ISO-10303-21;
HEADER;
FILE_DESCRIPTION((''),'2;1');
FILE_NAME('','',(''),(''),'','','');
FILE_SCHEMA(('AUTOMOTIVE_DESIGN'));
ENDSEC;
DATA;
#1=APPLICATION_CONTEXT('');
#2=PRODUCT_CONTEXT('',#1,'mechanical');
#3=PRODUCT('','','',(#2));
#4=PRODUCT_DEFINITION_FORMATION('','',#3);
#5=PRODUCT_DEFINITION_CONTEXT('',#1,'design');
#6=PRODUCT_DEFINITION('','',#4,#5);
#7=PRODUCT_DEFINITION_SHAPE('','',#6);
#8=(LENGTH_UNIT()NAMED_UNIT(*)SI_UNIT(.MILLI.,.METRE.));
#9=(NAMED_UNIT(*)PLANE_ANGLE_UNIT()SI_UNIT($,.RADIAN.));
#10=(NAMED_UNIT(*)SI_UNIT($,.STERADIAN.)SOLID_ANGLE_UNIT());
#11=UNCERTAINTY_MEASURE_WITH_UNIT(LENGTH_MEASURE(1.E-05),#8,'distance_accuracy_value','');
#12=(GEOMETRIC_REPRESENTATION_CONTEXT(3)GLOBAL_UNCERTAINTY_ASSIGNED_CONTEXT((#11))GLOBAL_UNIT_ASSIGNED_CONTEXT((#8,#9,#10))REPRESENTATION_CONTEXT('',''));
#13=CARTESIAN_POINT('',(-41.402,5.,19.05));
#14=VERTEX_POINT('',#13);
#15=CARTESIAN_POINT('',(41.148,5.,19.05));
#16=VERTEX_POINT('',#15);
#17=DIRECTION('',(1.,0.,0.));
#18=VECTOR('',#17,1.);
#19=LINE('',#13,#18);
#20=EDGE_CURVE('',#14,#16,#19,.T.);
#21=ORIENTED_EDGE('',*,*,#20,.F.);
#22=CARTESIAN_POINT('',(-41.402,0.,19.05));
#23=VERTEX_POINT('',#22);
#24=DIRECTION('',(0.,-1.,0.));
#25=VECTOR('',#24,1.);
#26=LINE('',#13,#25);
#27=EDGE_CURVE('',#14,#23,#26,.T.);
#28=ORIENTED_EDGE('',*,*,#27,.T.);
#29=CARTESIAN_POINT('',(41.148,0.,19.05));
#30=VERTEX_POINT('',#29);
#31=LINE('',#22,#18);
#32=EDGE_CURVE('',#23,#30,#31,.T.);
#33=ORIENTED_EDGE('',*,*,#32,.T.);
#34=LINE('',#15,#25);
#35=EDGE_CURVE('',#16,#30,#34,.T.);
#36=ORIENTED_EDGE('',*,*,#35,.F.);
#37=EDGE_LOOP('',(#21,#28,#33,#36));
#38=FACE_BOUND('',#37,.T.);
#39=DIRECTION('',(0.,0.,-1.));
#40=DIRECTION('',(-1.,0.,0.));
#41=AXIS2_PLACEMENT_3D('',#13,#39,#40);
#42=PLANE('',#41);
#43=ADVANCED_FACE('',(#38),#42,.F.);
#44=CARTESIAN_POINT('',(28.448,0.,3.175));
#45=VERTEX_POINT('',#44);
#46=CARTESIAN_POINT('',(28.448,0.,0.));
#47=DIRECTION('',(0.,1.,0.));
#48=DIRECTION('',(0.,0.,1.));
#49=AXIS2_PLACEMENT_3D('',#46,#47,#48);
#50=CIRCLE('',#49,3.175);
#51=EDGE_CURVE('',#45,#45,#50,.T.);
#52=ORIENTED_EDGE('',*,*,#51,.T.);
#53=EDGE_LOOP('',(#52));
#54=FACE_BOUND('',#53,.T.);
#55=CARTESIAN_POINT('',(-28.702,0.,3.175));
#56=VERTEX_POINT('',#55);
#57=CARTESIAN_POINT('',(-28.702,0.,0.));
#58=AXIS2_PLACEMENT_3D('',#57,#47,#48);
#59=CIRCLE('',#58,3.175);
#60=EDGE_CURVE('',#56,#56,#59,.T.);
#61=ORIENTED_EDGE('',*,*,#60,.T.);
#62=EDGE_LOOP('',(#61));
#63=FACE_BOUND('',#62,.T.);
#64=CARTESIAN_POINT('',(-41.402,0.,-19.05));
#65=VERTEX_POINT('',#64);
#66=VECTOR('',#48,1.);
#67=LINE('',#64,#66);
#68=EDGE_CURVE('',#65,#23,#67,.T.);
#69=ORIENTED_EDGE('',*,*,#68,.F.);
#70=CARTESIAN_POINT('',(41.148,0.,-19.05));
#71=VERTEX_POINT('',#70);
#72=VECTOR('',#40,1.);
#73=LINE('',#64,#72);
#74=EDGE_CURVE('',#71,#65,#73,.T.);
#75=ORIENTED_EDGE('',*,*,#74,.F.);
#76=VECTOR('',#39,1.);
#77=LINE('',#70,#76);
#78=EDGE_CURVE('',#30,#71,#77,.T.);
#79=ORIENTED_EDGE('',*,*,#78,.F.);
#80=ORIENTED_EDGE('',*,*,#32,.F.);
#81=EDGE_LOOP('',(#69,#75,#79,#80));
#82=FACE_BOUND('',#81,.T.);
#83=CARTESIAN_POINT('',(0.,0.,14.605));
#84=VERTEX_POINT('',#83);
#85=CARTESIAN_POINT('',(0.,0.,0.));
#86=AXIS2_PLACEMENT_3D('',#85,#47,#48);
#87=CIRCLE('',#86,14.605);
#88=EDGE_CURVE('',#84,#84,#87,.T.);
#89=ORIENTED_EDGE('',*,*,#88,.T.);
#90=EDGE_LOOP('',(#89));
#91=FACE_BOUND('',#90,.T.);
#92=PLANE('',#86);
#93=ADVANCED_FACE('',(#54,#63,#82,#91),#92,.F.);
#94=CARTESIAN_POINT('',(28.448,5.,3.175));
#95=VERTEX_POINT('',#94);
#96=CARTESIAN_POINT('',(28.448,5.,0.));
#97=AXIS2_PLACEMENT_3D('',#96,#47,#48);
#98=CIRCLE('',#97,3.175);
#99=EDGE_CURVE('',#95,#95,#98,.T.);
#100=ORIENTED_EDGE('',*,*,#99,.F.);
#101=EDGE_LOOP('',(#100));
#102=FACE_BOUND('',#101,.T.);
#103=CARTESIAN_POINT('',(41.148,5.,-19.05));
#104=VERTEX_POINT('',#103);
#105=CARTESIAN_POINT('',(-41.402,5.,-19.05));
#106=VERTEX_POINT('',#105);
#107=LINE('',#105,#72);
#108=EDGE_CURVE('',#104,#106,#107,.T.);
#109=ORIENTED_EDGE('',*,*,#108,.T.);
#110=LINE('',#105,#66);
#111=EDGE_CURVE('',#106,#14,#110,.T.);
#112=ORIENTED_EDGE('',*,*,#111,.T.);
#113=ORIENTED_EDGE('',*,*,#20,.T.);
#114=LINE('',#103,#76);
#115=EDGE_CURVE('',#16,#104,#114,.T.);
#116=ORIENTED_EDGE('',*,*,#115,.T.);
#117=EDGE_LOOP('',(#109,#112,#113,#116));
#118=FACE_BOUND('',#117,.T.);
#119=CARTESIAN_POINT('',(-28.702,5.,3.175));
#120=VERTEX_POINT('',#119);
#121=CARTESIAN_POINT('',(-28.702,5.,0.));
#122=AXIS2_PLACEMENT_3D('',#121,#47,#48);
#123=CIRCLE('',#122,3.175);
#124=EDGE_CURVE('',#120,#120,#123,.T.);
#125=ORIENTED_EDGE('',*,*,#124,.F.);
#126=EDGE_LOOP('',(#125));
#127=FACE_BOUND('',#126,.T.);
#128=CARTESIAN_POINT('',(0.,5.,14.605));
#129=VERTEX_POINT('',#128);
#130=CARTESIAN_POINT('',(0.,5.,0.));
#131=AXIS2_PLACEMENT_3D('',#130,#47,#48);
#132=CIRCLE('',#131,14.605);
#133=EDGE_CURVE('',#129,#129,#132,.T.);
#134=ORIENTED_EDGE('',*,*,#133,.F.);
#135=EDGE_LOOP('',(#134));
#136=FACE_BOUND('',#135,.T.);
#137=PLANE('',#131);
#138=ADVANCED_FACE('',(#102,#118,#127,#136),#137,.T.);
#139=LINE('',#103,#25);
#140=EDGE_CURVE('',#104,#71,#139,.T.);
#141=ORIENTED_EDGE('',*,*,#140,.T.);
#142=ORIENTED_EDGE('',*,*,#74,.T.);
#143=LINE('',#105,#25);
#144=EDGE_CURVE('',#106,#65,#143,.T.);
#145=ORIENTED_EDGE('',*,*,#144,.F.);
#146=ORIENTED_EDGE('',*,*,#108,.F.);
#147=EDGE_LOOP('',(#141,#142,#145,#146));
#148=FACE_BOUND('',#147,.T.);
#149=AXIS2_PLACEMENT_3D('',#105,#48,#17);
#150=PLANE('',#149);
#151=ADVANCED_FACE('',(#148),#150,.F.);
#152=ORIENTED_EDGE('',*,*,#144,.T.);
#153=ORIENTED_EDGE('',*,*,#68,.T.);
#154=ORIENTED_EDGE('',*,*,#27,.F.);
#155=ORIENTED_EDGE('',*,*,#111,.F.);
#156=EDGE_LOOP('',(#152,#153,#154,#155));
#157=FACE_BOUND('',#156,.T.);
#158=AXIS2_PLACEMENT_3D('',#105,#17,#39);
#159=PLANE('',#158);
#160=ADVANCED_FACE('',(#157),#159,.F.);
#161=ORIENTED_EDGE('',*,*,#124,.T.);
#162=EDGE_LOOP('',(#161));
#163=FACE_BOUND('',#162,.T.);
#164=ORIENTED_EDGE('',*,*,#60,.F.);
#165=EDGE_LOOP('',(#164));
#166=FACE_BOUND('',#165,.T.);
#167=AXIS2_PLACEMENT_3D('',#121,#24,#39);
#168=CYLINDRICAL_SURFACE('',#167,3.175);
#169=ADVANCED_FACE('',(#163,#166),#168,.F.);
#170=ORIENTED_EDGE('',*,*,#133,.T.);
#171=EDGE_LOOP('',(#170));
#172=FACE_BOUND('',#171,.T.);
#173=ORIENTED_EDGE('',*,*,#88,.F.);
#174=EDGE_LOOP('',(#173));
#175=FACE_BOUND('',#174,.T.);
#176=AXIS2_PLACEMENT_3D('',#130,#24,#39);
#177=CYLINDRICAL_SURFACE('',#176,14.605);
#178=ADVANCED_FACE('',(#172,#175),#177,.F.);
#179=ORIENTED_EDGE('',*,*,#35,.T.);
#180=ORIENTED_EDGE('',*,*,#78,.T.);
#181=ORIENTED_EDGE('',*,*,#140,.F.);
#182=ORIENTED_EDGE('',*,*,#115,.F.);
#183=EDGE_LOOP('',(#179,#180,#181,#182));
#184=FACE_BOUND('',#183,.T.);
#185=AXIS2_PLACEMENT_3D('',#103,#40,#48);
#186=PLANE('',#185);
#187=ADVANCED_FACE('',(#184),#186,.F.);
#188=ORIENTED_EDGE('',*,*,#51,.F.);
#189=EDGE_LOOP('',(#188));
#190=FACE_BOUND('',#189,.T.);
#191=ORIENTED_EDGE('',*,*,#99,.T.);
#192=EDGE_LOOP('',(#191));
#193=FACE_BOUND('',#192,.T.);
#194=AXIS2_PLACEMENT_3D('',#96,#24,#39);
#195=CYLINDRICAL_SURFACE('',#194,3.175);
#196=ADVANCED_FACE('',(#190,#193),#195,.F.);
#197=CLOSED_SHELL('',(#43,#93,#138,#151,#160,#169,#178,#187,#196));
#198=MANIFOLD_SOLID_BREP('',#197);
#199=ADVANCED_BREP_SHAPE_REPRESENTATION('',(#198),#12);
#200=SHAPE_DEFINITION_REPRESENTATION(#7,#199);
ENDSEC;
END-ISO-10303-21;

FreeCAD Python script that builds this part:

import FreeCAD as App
import Part
import Sketcher
from FreeCAD import Vector
Q = App.Units.Quantity


def add_polygon(sketch, points):
    """Adds a closed chain of lines whose ends are joined by coincident constraints."""
    first, n = sketch.GeometryCount, len(points)
    for a, b in zip(points, points[1:] + points[:1]):
        sketch.addGeometry(Part.LineSegment(App.Vector(*a, 0), App.Vector(*b, 0)), False)
    for i in range(n):
        sketch.addConstraint(Sketcher.Constraint("Coincident", first + i, 2, first + (i + 1) % n, 1))

doc = App.newDocument("Part")
body = doc.addObject("PartDesign::Body", "Body")

# Sketch on XZ plane
sketch1 = doc.addObject("Sketcher::SketchObject", "Sketch")
body.addObject(sketch1)
sketch1.AttachmentSupport = (doc.XZ_Plane, [""])
sketch1.MapMode = "FlatFace"
add_polygon(sketch1, [(-41.402, -19.05), (-41.402, 19.05), (41.148, 19.05), (41.148, -19.05)])  # lines 0-3
sketch1.addGeometry(Part.Circle(Vector(-28.702, 0, 0), Vector(0, 0, 1), 3.175), False)  # 4
sketch1.addGeometry(Part.Circle(Vector(0, 0, 0), Vector(0, 0, 1), 14.605), False)  # 5
sketch1.addGeometry(Part.Circle(Vector(28.448, 0, 0), Vector(0, 0, 1), 3.175), False)  # 6
sketch1.addConstraint([
    Sketcher.Constraint("Vertical", 0),
    Sketcher.Constraint("Horizontal", 1),
    Sketcher.Constraint("Vertical", 2),
    Sketcher.Constraint("Horizontal", 3),
    Sketcher.Constraint("Coincident", 5, 3, -1, 1),
    Sketcher.Constraint("Equal", 4, 6),
    Sketcher.Constraint("PointOnObject", 4, 3, -1),
    Sketcher.Constraint("PointOnObject", 6, 3, -1),
    Sketcher.Constraint("Diameter", 4, Q("0.25 in")),
    Sketcher.Constraint("Diameter", 5, Q("1.15 in")),
    Sketcher.Constraint("DistanceY", 0, 1, 0, 2, Q("1.5 in")),
    Sketcher.Constraint("DistanceX", 1, 1, 1, 2, Q("3.25 in")),
    Sketcher.Constraint("DistanceX", 0, 2, 4, 3, Q("0.5 in")),
    Sketcher.Constraint("DistanceX", 6, 3, 1, 2, Q("0.5 in")),
    Sketcher.Constraint("DistanceX", 4, 3, -1, 1, Q("1.13 in")),
    Sketcher.Constraint("DistanceY", -1, 1, 0, 2, Q("0.75 in")),
])
pad1 = doc.addObject("PartDesign::Pad", "Pad")
body.addObject(pad1)
pad1.Profile = sketch1
pad1.Length = 5
pad1.Reversed = True

doc.recompute()
